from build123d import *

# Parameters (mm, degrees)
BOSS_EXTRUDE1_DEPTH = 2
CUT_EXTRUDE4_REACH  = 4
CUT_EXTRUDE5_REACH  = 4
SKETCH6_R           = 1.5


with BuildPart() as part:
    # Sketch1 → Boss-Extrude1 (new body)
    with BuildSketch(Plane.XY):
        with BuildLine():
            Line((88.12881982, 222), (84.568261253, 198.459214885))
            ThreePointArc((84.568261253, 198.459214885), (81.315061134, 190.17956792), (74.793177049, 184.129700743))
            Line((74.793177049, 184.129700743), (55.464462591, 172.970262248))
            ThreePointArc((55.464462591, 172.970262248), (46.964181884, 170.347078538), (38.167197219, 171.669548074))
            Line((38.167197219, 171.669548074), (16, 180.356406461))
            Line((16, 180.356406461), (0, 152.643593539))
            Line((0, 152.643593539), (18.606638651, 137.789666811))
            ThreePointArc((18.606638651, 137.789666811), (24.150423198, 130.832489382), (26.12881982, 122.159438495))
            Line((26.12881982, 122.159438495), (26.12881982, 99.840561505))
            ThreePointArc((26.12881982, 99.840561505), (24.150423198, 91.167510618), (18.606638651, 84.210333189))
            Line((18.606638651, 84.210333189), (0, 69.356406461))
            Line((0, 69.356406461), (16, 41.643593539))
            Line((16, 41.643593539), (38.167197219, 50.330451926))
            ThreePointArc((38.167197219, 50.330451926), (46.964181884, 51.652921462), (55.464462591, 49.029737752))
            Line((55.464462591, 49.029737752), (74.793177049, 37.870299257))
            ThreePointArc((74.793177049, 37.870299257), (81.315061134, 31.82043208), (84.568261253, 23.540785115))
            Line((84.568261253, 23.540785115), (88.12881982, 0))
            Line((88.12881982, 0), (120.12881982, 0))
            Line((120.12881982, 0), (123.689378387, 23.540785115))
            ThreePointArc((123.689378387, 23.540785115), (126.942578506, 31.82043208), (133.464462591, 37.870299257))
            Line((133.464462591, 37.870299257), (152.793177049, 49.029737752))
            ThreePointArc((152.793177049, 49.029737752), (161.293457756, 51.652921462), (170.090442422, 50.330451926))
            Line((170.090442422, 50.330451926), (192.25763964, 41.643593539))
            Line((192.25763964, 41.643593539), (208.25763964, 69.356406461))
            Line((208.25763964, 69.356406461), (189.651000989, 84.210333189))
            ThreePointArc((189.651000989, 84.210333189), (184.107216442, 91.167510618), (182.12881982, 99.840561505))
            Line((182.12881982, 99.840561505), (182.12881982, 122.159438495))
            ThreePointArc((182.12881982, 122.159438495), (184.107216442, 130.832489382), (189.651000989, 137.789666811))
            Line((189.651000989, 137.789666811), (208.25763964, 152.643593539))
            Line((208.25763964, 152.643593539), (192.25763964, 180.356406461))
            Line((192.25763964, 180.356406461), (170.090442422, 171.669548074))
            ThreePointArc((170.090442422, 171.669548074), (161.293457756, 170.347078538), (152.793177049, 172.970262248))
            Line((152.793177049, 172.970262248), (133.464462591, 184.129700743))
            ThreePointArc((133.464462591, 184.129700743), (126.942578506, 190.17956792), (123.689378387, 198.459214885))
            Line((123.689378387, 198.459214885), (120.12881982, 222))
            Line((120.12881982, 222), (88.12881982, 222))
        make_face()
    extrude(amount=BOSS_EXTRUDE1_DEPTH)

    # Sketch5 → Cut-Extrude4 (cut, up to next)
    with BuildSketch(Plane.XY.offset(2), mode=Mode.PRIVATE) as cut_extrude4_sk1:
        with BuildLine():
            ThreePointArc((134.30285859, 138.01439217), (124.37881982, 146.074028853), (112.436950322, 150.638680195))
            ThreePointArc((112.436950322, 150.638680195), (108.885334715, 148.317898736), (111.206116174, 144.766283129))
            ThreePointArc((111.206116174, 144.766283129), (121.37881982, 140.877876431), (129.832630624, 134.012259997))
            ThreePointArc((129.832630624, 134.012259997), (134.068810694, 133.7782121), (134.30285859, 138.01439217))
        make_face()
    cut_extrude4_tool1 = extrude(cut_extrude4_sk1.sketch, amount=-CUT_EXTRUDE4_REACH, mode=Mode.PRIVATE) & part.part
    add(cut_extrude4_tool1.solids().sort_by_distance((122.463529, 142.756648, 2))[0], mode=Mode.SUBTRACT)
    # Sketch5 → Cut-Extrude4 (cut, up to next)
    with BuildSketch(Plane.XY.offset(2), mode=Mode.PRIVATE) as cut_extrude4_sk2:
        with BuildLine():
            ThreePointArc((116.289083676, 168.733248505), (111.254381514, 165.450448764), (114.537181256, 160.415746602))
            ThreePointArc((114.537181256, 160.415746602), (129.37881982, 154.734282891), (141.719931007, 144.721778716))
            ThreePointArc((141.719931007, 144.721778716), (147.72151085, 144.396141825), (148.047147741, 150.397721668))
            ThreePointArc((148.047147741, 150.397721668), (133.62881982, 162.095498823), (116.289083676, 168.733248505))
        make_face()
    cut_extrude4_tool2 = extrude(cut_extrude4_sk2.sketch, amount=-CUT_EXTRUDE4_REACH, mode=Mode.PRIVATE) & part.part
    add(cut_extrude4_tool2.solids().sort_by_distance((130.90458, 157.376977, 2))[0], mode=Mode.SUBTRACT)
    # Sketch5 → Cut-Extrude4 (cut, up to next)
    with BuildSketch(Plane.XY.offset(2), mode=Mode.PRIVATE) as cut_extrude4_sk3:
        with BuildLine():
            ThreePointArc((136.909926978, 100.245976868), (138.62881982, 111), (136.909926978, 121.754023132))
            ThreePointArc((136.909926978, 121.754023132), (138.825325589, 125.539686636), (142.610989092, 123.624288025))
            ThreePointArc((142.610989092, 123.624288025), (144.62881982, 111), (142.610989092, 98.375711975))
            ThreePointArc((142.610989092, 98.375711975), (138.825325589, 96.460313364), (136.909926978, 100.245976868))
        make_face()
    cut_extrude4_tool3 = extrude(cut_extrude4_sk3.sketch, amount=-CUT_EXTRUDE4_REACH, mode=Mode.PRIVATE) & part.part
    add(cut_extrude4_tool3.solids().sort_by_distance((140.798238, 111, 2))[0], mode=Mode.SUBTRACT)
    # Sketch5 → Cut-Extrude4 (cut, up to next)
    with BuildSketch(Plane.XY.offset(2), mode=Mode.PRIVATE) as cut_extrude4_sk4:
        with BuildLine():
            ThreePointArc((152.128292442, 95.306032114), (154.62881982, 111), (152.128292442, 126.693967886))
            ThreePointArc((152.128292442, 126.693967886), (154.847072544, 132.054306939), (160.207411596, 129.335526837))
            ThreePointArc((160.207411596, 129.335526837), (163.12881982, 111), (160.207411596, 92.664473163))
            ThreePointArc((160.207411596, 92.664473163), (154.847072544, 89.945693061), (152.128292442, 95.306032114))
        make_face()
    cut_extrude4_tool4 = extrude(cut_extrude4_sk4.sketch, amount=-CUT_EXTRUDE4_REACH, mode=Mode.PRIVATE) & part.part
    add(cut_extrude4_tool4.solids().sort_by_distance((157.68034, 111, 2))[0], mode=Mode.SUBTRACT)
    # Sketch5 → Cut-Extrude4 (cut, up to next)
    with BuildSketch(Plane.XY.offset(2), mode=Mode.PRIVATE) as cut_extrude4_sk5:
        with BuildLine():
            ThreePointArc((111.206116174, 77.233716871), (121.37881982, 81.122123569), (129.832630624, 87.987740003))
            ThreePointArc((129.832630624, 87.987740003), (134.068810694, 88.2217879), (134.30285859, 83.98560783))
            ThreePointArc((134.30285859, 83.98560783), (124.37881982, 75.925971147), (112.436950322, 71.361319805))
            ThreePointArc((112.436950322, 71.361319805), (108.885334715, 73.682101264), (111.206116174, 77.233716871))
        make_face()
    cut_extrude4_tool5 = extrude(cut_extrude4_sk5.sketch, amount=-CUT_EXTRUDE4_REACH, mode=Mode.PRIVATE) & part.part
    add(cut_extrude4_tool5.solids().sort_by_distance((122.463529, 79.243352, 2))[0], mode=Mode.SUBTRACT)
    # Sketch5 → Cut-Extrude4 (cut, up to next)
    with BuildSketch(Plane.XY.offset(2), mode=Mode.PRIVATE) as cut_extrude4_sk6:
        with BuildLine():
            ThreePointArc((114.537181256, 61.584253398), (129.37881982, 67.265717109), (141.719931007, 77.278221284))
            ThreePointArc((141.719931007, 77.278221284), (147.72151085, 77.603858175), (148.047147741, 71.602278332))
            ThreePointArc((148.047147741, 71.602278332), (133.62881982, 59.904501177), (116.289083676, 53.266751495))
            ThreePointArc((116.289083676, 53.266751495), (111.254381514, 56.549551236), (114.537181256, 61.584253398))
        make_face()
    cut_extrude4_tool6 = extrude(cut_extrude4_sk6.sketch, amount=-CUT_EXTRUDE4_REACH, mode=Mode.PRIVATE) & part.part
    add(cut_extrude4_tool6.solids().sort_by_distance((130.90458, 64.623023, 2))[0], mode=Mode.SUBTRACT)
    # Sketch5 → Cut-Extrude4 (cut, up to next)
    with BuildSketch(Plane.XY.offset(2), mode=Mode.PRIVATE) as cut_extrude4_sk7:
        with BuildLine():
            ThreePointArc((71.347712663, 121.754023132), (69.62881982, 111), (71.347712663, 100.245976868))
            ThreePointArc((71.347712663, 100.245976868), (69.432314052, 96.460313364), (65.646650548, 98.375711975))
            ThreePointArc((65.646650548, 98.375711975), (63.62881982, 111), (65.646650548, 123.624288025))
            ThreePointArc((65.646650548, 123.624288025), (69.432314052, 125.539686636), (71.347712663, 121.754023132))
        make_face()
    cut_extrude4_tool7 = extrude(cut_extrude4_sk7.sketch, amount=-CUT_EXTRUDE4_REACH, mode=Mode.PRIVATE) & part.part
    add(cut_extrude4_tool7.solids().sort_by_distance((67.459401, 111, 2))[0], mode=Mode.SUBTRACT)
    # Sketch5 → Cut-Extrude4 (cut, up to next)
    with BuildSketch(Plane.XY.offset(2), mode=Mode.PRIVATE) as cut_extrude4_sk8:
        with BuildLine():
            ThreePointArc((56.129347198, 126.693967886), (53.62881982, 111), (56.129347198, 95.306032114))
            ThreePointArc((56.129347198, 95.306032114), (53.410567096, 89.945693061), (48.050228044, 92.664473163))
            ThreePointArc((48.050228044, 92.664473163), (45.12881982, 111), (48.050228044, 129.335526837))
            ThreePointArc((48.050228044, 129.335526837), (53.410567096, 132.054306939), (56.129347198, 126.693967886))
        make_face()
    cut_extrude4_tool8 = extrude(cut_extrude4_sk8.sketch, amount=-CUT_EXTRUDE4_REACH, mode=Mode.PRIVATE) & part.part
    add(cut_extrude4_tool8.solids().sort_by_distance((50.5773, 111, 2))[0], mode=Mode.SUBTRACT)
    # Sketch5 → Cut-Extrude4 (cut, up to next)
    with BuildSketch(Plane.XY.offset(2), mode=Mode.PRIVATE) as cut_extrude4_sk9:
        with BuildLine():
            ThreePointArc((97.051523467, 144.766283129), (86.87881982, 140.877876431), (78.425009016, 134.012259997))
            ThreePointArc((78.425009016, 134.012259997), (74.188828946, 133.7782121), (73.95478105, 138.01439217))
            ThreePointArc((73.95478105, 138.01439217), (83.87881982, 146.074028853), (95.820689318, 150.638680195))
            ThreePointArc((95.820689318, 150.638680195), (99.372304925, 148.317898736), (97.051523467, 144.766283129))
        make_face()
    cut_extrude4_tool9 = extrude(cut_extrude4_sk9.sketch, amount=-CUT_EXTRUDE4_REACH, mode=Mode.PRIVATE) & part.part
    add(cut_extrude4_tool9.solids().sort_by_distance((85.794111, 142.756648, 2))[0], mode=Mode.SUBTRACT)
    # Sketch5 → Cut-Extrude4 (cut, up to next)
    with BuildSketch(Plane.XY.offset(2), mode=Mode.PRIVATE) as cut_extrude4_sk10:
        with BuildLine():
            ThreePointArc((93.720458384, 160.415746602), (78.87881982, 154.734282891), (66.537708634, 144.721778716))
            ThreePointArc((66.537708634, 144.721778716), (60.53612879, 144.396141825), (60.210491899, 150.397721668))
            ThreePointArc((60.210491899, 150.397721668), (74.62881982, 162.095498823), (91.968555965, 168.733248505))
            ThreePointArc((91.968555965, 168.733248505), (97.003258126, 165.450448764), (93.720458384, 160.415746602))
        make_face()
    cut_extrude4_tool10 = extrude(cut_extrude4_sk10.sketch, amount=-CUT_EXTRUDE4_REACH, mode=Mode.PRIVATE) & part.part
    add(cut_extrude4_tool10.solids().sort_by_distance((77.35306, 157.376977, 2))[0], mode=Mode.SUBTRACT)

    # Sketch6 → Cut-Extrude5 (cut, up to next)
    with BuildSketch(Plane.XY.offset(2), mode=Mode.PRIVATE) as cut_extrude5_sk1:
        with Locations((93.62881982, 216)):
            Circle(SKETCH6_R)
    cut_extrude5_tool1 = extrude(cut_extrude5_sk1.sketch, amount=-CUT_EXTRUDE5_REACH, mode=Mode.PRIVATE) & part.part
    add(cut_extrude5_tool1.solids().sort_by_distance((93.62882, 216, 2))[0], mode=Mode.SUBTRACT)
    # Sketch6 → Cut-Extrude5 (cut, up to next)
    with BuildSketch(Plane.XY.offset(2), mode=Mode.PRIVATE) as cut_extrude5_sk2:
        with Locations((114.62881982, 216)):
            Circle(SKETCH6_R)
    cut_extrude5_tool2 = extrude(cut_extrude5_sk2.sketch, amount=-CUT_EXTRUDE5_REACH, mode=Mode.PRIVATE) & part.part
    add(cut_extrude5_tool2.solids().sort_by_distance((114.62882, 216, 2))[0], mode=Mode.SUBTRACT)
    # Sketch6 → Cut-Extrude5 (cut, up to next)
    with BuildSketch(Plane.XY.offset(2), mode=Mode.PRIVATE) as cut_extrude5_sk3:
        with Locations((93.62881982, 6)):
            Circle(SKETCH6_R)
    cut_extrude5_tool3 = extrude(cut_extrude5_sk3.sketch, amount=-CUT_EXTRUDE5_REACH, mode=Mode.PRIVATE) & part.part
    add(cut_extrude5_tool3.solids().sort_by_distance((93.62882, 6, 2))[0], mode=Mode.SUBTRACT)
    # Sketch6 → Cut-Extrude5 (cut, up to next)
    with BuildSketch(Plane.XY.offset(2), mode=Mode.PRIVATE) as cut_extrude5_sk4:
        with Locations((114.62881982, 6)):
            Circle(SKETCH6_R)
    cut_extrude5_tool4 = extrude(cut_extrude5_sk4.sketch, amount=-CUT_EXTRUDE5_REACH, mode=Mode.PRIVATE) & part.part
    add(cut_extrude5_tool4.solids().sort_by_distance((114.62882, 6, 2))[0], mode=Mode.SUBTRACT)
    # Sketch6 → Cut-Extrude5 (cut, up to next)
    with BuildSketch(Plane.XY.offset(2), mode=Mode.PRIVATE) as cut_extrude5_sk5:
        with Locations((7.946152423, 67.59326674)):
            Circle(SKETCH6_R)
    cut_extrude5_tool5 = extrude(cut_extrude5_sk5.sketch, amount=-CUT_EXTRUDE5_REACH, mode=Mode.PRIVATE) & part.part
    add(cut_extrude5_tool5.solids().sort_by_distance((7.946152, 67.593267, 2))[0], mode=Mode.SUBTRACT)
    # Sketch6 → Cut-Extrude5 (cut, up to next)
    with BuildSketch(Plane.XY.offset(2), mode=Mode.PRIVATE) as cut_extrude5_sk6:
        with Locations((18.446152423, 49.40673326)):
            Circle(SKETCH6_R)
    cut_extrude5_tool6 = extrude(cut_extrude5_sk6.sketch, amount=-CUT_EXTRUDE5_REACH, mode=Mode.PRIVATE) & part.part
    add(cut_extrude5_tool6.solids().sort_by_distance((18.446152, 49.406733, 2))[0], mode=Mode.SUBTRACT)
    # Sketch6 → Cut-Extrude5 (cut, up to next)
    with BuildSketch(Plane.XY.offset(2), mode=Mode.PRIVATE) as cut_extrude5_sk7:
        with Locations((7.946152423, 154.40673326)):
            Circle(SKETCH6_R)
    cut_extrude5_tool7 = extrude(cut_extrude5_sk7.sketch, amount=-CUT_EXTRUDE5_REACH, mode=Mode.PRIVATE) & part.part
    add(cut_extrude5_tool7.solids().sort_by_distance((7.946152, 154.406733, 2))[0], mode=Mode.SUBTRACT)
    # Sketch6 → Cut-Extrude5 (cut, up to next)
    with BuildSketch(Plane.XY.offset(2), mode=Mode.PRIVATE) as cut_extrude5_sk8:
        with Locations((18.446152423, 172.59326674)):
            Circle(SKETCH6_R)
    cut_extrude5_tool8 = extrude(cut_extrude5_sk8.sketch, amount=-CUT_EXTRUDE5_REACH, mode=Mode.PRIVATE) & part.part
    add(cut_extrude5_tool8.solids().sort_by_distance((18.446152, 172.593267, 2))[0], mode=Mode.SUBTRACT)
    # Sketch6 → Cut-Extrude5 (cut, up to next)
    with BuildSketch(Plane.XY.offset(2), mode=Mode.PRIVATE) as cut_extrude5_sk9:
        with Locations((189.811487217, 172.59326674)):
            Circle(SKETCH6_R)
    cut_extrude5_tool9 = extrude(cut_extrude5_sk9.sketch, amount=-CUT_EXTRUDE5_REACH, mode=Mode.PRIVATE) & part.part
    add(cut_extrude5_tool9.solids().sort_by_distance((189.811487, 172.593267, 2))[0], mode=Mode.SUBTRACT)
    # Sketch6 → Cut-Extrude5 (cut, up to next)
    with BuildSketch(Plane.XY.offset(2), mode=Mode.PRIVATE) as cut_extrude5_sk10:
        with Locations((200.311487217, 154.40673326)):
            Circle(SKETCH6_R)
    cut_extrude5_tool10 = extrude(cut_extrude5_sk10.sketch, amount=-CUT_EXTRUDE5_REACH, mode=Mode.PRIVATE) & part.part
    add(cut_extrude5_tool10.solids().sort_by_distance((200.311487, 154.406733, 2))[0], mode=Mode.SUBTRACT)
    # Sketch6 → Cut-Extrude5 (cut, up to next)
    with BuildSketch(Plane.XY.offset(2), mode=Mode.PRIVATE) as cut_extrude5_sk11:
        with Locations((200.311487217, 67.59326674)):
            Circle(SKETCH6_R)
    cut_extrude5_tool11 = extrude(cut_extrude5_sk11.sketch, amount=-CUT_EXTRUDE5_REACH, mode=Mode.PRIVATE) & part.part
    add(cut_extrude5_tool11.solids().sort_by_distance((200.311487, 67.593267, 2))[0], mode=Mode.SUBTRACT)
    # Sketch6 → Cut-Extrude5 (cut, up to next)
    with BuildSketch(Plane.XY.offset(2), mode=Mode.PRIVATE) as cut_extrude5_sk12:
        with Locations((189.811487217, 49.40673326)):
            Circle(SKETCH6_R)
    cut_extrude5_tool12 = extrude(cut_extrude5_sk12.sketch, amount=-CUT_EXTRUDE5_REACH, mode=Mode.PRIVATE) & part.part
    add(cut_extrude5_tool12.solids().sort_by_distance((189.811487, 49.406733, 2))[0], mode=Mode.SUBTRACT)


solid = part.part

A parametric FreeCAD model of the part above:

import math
import FreeCAD as App
import Part
import Sketcher
Q = App.Units.Quantity

doc = App.newDocument("Part")
body = doc.addObject("PartDesign::Body", "Body")

# Sketch on XY plane
sketch1 = body.newObject("Sketcher::SketchObject", "Sketch")
sketch1.AttachmentSupport = (doc.getObject("XY_Plane"), [""])
sketch1.MapMode = "FlatFace"
sketch1.addGeometry([
    Part.LineSegment(App.Vector(88, 222, 0), App.Vector(85, 198, 0)),  # 0
    Part.ArcOfCircle(Part.Circle(App.Vector(65, 201, 0), App.Vector(0, 0, 1), 20), math.radians(-60), math.radians(-9)),  # 1
    Part.LineSegment(App.Vector(75, 184, 0), App.Vector(55, 173, 0)),  # 2
    Part.ArcOfCircle(Part.Circle(App.Vector(45, 190, 0), App.Vector(0, 0, 1), 20), math.radians(-111), math.radians(-60)),  # 3
    Part.LineSegment(App.Vector(38, 172, 0), App.Vector(16, 180, 0)),  # 4
    Part.LineSegment(App.Vector(16, 180, 0), App.Vector(0, 153, 0)),  # 5
    Part.LineSegment(App.Vector(0, 153, 0), App.Vector(19, 138, 0)),  # 6
    Part.ArcOfCircle(Part.Circle(App.Vector(6, 122, 0), App.Vector(0, 0, 1), 20), math.radians(0), math.radians(51)),  # 7
    Part.LineSegment(App.Vector(26, 122, 0), App.Vector(26, 100, 0)),  # 8
    Part.ArcOfCircle(Part.Circle(App.Vector(6, 100, 0), App.Vector(0, 0, 1), 20), math.radians(-51), math.radians(0)),  # 9
    Part.LineSegment(App.Vector(19, 84, 0), App.Vector(0, 69, 0)),  # 10
    Part.LineSegment(App.Vector(0, 69, 0), App.Vector(16, 42, 0)),  # 11
    Part.LineSegment(App.Vector(16, 42, 0), App.Vector(38, 50, 0)),  # 12
    Part.ArcOfCircle(Part.Circle(App.Vector(45, 32, 0), App.Vector(0, 0, 1), 20), math.radians(60), math.radians(111)),  # 13
    Part.LineSegment(App.Vector(55, 49, 0), App.Vector(75, 38, 0)),  # 14
    Part.ArcOfCircle(Part.Circle(App.Vector(65, 21, 0), App.Vector(0, 0, 1), 20), math.radians(9), math.radians(60)),  # 15
    Part.LineSegment(App.Vector(85, 24, 0), App.Vector(88, 0, 0)),  # 16
    Part.LineSegment(App.Vector(88, 0, 0), App.Vector(120, 0, 0)),  # 17
    Part.LineSegment(App.Vector(120, 0, 0), App.Vector(124, 24, 0)),  # 18
    Part.ArcOfCircle(Part.Circle(App.Vector(143, 21, 0), App.Vector(0, 0, 1), 20), math.radians(120), math.radians(171)),  # 19
    Part.LineSegment(App.Vector(133, 38, 0), App.Vector(153, 49, 0)),  # 20
    Part.ArcOfCircle(Part.Circle(App.Vector(163, 32, 0), App.Vector(0, 0, 1), 20), math.radians(69), math.radians(120)),  # 21
    Part.LineSegment(App.Vector(170, 50, 0), App.Vector(192, 42, 0)),  # 22
    Part.LineSegment(App.Vector(192, 42, 0), App.Vector(208, 69, 0)),  # 23
    Part.LineSegment(App.Vector(208, 69, 0), App.Vector(190, 84, 0)),  # 24
    Part.ArcOfCircle(Part.Circle(App.Vector(202, 100, 0), App.Vector(0, 0, 1), 20), math.radians(180), math.radians(231)),  # 25
    Part.LineSegment(App.Vector(182, 100, 0), App.Vector(182, 122, 0)),  # 26
    Part.ArcOfCircle(Part.Circle(App.Vector(202, 122, 0), App.Vector(0, 0, 1), 20), math.radians(129), math.radians(180)),  # 27
    Part.LineSegment(App.Vector(190, 138, 0), App.Vector(208, 153, 0)),  # 28
    Part.LineSegment(App.Vector(208, 153, 0), App.Vector(192, 180, 0)),  # 29
    Part.LineSegment(App.Vector(192, 180, 0), App.Vector(170, 172, 0)),  # 30
    Part.ArcOfCircle(Part.Circle(App.Vector(163, 190, 0), App.Vector(0, 0, 1), 20), math.radians(-120), math.radians(-69)),  # 31
    Part.LineSegment(App.Vector(153, 173, 0), App.Vector(133, 184, 0)),  # 32
    Part.ArcOfCircle(Part.Circle(App.Vector(143, 201, 0), App.Vector(0, 0, 1), 20), math.radians(-171), math.radians(-120)),  # 33
    Part.LineSegment(App.Vector(124, 198, 0), App.Vector(120, 222, 0)),  # 34
    Part.LineSegment(App.Vector(120, 222, 0), App.Vector(88, 222, 0)),  # 35
], False)
sketch1.addConstraint([
    Sketcher.Constraint("Tangent", 0, 2, 1, 2),
    Sketcher.Constraint("Tangent", 1, 1, 2, 1),
    Sketcher.Constraint("Tangent", 2, 2, 3, 2),
    Sketcher.Constraint("Tangent", 3, 1, 4, 1),
    Sketcher.Constraint("Coincident", 4, 2, 5, 1),
    Sketcher.Constraint("Coincident", 5, 2, 6, 1),
    Sketcher.Constraint("Tangent", 6, 2, 7, 2),
    Sketcher.Constraint("Tangent", 7, 1, 8, 1),
    Sketcher.Constraint("Tangent", 8, 2, 9, 2),
    Sketcher.Constraint("Tangent", 9, 1, 10, 1),
    Sketcher.Constraint("Coincident", 10, 2, 11, 1),
    Sketcher.Constraint("Coincident", 11, 2, 12, 1),
    Sketcher.Constraint("Tangent", 12, 2, 13, 2),
    Sketcher.Constraint("Tangent", 13, 1, 14, 1),
    Sketcher.Constraint("Tangent", 14, 2, 15, 2),
    Sketcher.Constraint("Tangent", 15, 1, 16, 1),
    Sketcher.Constraint("Coincident", 16, 2, 17, 1),
    Sketcher.Constraint("Coincident", 17, 2, 18, 1),
    Sketcher.Constraint("Tangent", 18, 2, 19, 2),
    Sketcher.Constraint("Tangent", 19, 1, 20, 1),
    Sketcher.Constraint("Tangent", 20, 2, 21, 2),
    Sketcher.Constraint("Tangent", 21, 1, 22, 1),
    Sketcher.Constraint("Coincident", 22, 2, 23, 1),
    Sketcher.Constraint("Coincident", 23, 2, 24, 1),
    Sketcher.Constraint("Tangent", 24, 2, 25, 2),
    Sketcher.Constraint("Tangent", 25, 1, 26, 1),
    Sketcher.Constraint("Tangent", 26, 2, 27, 2),
    Sketcher.Constraint("Tangent", 27, 1, 28, 1),
    Sketcher.Constraint("Coincident", 28, 2, 29, 1),
    Sketcher.Constraint("Coincident", 29, 2, 30, 1),
    Sketcher.Constraint("Tangent", 30, 2, 31, 2),
    Sketcher.Constraint("Tangent", 31, 1, 32, 1),
    Sketcher.Constraint("Tangent", 32, 2, 33, 2),
    Sketcher.Constraint("Tangent", 33, 1, 34, 1),
    Sketcher.Constraint("Coincident", 34, 2, 35, 1),
    Sketcher.Constraint("Coincident", 35, 2, 0, 1),
    Sketcher.Constraint("Vertical", 8),
    Sketcher.Constraint("Horizontal", 17),
    Sketcher.Constraint("Vertical", 26),
    Sketcher.Constraint("Horizontal", 35),
    Sketcher.Constraint("Equal", 1, 3),
    Sketcher.Constraint("Equal", 3, 7),
    Sketcher.Constraint("Equal", 7, 9),
    Sketcher.Constraint("Equal", 9, 13),
    Sketcher.Constraint("Equal", 13, 15),
    Sketcher.Constraint("Equal", 15, 19),
    Sketcher.Constraint("Equal", 19, 21),
    Sketcher.Constraint("Equal", 21, 25),
    Sketcher.Constraint("Equal", 25, 27),
    Sketcher.Constraint("Equal", 27, 31),
    Sketcher.Constraint("Equal", 31, 33),
    Sketcher.Constraint("PointOnObject", 5, 2, -2),
    Sketcher.Constraint("PointOnObject", 10, 2, -2),
    Sketcher.Constraint("PointOnObject", 16, 2, -1),
    Sketcher.Constraint("Perpendicular", 2, 11),
    Sketcher.Constraint("Perpendicular", 5, 14),
    Sketcher.Constraint("Parallel", 0, 18),
    Sketcher.Constraint("Perpendicular", 11, 20),
    Sketcher.Constraint("Parallel", 4, 22),
    Sketcher.Constraint("Perpendicular", 14, 23),
    Sketcher.Constraint("Parallel", 6, 24),
    Sketcher.Constraint("Parallel", 10, 28),
    Sketcher.Constraint("Perpendicular", 20, 29),
    Sketcher.Constraint("Parallel", 12, 30),
    Sketcher.Constraint("Perpendicular", 23, 32),
    Sketcher.Constraint("Parallel", 16, 34),
    Sketcher.Constraint("Horizontal", 15, 3, 19, 3),
    Sketcher.Constraint("Horizontal", 13, 3, 21, 3),
    Sketcher.Constraint("Horizontal", 9, 3, 25, 3),
    Sketcher.Constraint("Horizontal", 7, 3, 27, 3),
    Sketcher.Constraint("Horizontal", 3, 3, 31, 3),
    Sketcher.Constraint("Horizontal", 1, 3, 33, 3),
    Sketcher.Constraint("Horizontal", 15, 1, 18, 2),
    Sketcher.Constraint("Horizontal", 14, 2, 19, 1),
    Sketcher.Constraint("Horizontal", 12, 2, 21, 1),
    Sketcher.Constraint("Horizontal", 11, 2, 22, 2),
    Sketcher.Constraint("Horizontal", 10, 2, 23, 2),
    Sketcher.Constraint("Horizontal", 9, 1, 24, 2),
    Sketcher.Constraint("Horizontal", 5, 2, 28, 2),
    Sketcher.Constraint("Horizontal", 4, 2, 29, 2),
    Sketcher.Constraint("Vertical", 3, 3, 13, 3),
    Sketcher.Constraint("Vertical", 1, 3, 15, 3),
    Sketcher.Constraint("Vertical", 4, 2, 11, 2),
    Sketcher.Constraint("Vertical", 17, 2, 34, 2),
    Sketcher.Constraint("Equal", 0, 4),
    Sketcher.Constraint("Equal", 4, 6),
    Sketcher.Constraint("Radius", 1, 20.0),
    Sketcher.Constraint("DistanceX", 17, 1, 17, 2, 32.0),
    Sketcher.Constraint("Angle", 2, Q("-150 deg")),
    Sketcher.Constraint("Distance", 5, 32.0),
    Sketcher.Constraint("DistanceY", -1, 1, 34, 2, 222.0),
    Sketcher.Constraint("DistanceX", 13, 3, 19, 3, 98.0),
    Sketcher.Constraint("DistanceX", -1, 1, 24, 2, 189.651001),
    Sketcher.Constraint("DistanceY", -1, 1, 1, 1, 184.129701),
    Sketcher.Constraint("DistanceX", 3, 3, 0, 2, 39.103799),
    Sketcher.Constraint("DistanceY", 8, 2, 8, 1, 22.318877),
])
pad1 = body.newObject("PartDesign::Pad", "Pad")
pad1.Profile = sketch1
pad1.Length = 2

# Sketch on XY plane
sketch2 = body.newObject("Sketcher::SketchObject", "Sketch001")
sketch2.AttachmentSupport = (doc.getObject("XY_Plane"), [""])
sketch2.MapMode = "FlatFace"
sketch2.AttachmentOffset = App.Placement(App.Vector(0, 0, 2), App.Rotation())
sketch2.addGeometry([
    Part.ArcOfCircle(Part.Circle(App.Vector(104.12882, 111, 0), App.Vector(0, 0, 1), 40.5), math.radians(41.837638), math.radians(78.162362)),
    Part.ArcOfCircle(Part.Circle(App.Vector(111.821533, 147.702482, 0), App.Vector(0, 0, 1), 3), math.radians(78.162362), math.radians(258.162362)),
    Part.ArcOfCircle(Part.Circle(App.Vector(104.12882, 111, 0), App.Vector(0, 0, 1), 34.5), math.radians(41.837638), math.radians(78.162362)),
    Part.ArcOfCircle(Part.Circle(App.Vector(132.067745, 136.013326, 0), App.Vector(0, 0, 1), 3), math.radians(-138.162362), math.radians(41.837638)),
], False)
sketch2.addConstraint([
    Sketcher.Constraint("Tangent", 0, 2, 1, 1),
    Sketcher.Constraint("Tangent", 1, 2, 2, 2),
    Sketcher.Constraint("Tangent", 2, 1, 3, 1),
    Sketcher.Constraint("Tangent", 3, 2, 0, 1),
    Sketcher.Constraint("Coincident", 2, 3, 0, 3),
    Sketcher.Constraint("Radius", 1, 3.0),
    Sketcher.Constraint("Radius", 0, 40.5),
    Sketcher.Constraint("DistanceY", -1, 1, 0, 3, 111.0),
    Sketcher.Constraint("DistanceY", 1, 3, 0, 2, 2.936199),
    Sketcher.Constraint("DistanceX", -1, 1, 0, 3, 104.12882),
    Sketcher.Constraint("DistanceX", -1, 1, 2, 1, 129.832631),
])
pocket1 = body.newObject("PartDesign::Pocket", "Pocket")
pocket1.Profile = sketch2
pocket1.Type = "UpToFirst"

# Sketch on XY plane
sketch3 = body.newObject("Sketcher::SketchObject", "Sketch002")
sketch3.AttachmentSupport = (doc.getObject("XY_Plane"), [""])
sketch3.MapMode = "FlatFace"
sketch3.AttachmentOffset = App.Placement(App.Vector(0, 0, 2), App.Rotation())
sketch3.addGeometry([
    Part.ArcOfCircle(Part.Circle(App.Vector(115.4, 164.6, 0), App.Vector(0, 0, 1), 4.2), math.radians(78), math.radians(258)),
    Part.ArcOfCircle(Part.Circle(App.Vector(104.1, 111, 0), App.Vector(0, 0, 1), 50.5), math.radians(42), math.radians(78)),
    Part.ArcOfCircle(Part.Circle(App.Vector(144.9, 147.6, 0), App.Vector(0, 0, 1), 4.2), math.radians(-138), math.radians(42)),
    Part.ArcOfCircle(Part.Circle(App.Vector(104.1, 111, 0), App.Vector(0, 0, 1), 59), math.radians(42), math.radians(78)),
], False)
sketch3.addConstraint([
    Sketcher.Constraint("Tangent", 0, 2, 1, 2),
    Sketcher.Constraint("Tangent", 1, 1, 2, 1),
    Sketcher.Constraint("Tangent", 2, 2, 3, 1),
    Sketcher.Constraint("Tangent", 3, 2, 0, 1),
    Sketcher.Constraint("Coincident", 3, 3, 1, 3),
    Sketcher.Constraint("Radius", 3, 59.0),
    Sketcher.Constraint("Radius", 1, 50.5),
    Sketcher.Constraint("DistanceY", -1, 1, 1, 3, 111.0),
    Sketcher.Constraint("DistanceX", 0, 3, 1, 1, 26.306799),
    Sketcher.Constraint("DistanceY", 2, 3, 3, 2, 21.173498),
    Sketcher.Constraint("DistanceX", -1, 1, 1, 3, 104.12882),
])
pocket2 = body.newObject("PartDesign::Pocket", "Pocket001")
pocket2.Profile = sketch3
pocket2.Type = "UpToFirst"

# Sketch on XY plane
sketch4 = body.newObject("Sketcher::SketchObject", "Sketch003")
sketch4.AttachmentSupport = (doc.getObject("XY_Plane"), [""])
sketch4.MapMode = "FlatFace"
sketch4.AttachmentOffset = App.Placement(App.Vector(0, 0, 2), App.Rotation())
sketch4.addGeometry([
    Part.ArcOfCircle(Part.Circle(App.Vector(104.1, 111, 0), App.Vector(0, 0, 1), 34.5), math.radians(-18), math.radians(18)),
    Part.ArcOfCircle(Part.Circle(App.Vector(139.8, 99.3, 0), App.Vector(0, 0, 1), 3), math.radians(162), math.radians(342)),
    Part.ArcOfCircle(Part.Circle(App.Vector(104.1, 111, 0), App.Vector(0, 0, 1), 40.5), math.radians(-18), math.radians(18)),
    Part.ArcOfCircle(Part.Circle(App.Vector(139.8, 122.7, 0), App.Vector(0, 0, 1), 3), math.radians(18), math.radians(198)),
], False)
sketch4.addConstraint([
    Sketcher.Constraint("Tangent", 0, 1, 1, 1),
    Sketcher.Constraint("Tangent", 1, 2, 2, 1),
    Sketcher.Constraint("Tangent", 2, 2, 3, 1),
    Sketcher.Constraint("Tangent", 3, 2, 0, 2),
    Sketcher.Constraint("Coincident", 2, 3, 0, 3),
    Sketcher.Constraint("Vertical", 1, 3, 3, 3),
    Sketcher.Constraint("Radius", 1, 3.0),
    Sketcher.Constraint("Radius", 0, 34.5),
    Sketcher.Constraint("DistanceY", -1, 1, 0, 3, 111.0),
    Sketcher.Constraint("DistanceX", -1, 1, 0, 3, 104.12882),
    Sketcher.Constraint("DistanceX", -1, 1, 1, 3, 139.760458),
])
pocket3 = body.newObject("PartDesign::Pocket", "Pocket002")
pocket3.Profile = sketch4
pocket3.Type = "UpToFirst"

# Sketch on XY plane
sketch5 = body.newObject("Sketcher::SketchObject", "Sketch004")
sketch5.AttachmentSupport = (doc.getObject("XY_Plane"), [""])
sketch5.MapMode = "FlatFace"
sketch5.AttachmentOffset = App.Placement(App.Vector(0, 0, 2), App.Rotation())
sketch5.addGeometry([
    Part.ArcOfCircle(Part.Circle(App.Vector(104.1, 111, 0), App.Vector(0, 0, 1), 50.5), math.radians(-18), math.radians(18)),
    Part.ArcOfCircle(Part.Circle(App.Vector(156.2, 94, 0), App.Vector(0, 0, 1), 4.2), math.radians(162), math.radians(342)),
    Part.ArcOfCircle(Part.Circle(App.Vector(104.1, 111, 0), App.Vector(0, 0, 1), 59), math.radians(-18), math.radians(18)),
    Part.ArcOfCircle(Part.Circle(App.Vector(156.2, 128, 0), App.Vector(0, 0, 1), 4.2), math.radians(18), math.radians(198)),
], False)
sketch5.addConstraint([
    Sketcher.Constraint("Tangent", 0, 1, 1, 1),
    Sketcher.Constraint("Tangent", 1, 2, 2, 1),
    Sketcher.Constraint("Tangent", 2, 2, 3, 1),
    Sketcher.Constraint("Tangent", 3, 2, 0, 2),
    Sketcher.Constraint("Coincident", 2, 3, 0, 3),
    Sketcher.Constraint("Vertical", 1, 3, 3, 3),
    Sketcher.Constraint("Radius", 2, 59.0),
    Sketcher.Constraint("Radius", 0, 50.5),
    Sketcher.Constraint("DistanceY", -1, 1, 0, 3, 111.0),
    Sketcher.Constraint("DistanceX", -1, 1, 0, 3, 104.12882),
    Sketcher.Constraint("DistanceX", -1, 1, 1, 2, 160.207412),
])
pocket4 = body.newObject("PartDesign::Pocket", "Pocket003")
pocket4.Profile = sketch5
pocket4.Type = "UpToFirst"

# Sketch on XY plane
sketch6 = body.newObject("Sketcher::SketchObject", "Sketch005")
sketch6.AttachmentSupport = (doc.getObject("XY_Plane"), [""])
sketch6.MapMode = "FlatFace"
sketch6.AttachmentOffset = App.Placement(App.Vector(0, 0, 2), App.Rotation())
sketch6.addGeometry([
    Part.ArcOfCircle(Part.Circle(App.Vector(104.12882, 111, 0), App.Vector(0, 0, 1), 34.5), math.radians(-78.162362), math.radians(-41.837638)),
    Part.ArcOfCircle(Part.Circle(App.Vector(111.821533, 74.297518, 0), App.Vector(0, 0, 1), 3), math.radians(101.837638), math.radians(281.837638)),
    Part.ArcOfCircle(Part.Circle(App.Vector(104.12882, 111, 0), App.Vector(0, 0, 1), 40.5), math.radians(-78.162362), math.radians(-41.837638)),
    Part.ArcOfCircle(Part.Circle(App.Vector(132.067745, 85.986674, 0), App.Vector(0, 0, 1), 3), math.radians(-41.837638), math.radians(138.162362)),
], False)
sketch6.addConstraint([
    Sketcher.Constraint("Tangent", 0, 1, 1, 1),
    Sketcher.Constraint("Tangent", 1, 2, 2, 1),
    Sketcher.Constraint("Tangent", 2, 2, 3, 1),
    Sketcher.Constraint("Tangent", 3, 2, 0, 2),
    Sketcher.Constraint("Coincident", 2, 3, 0, 3),
    Sketcher.Constraint("Radius", 1, 3.0),
    Sketcher.Constraint("Radius", 0, 34.5),
    Sketcher.Constraint("DistanceY", -1, 1, 0, 3, 111.0),
    Sketcher.Constraint("DistanceY", 1, 3, 0, 1, 2.936199),
    Sketcher.Constraint("DistanceX", -1, 1, 0, 3, 104.12882),
    Sketcher.Constraint("DistanceX", -1, 1, 2, 2, 134.302859),
])
pocket5 = body.newObject("PartDesign::Pocket", "Pocket004")
pocket5.Profile = sketch6
pocket5.Type = "UpToFirst"

# Sketch on XY plane
sketch7 = body.newObject("Sketcher::SketchObject", "Sketch006")
sketch7.AttachmentSupport = (doc.getObject("XY_Plane"), [""])
sketch7.MapMode = "FlatFace"
sketch7.AttachmentOffset = App.Placement(App.Vector(0, 0, 2), App.Rotation())
sketch7.addGeometry([
    Part.ArcOfCircle(Part.Circle(App.Vector(104.1, 111, 0), App.Vector(0, 0, 1), 50.5), math.radians(-78), math.radians(-42)),
    Part.ArcOfCircle(Part.Circle(App.Vector(115.4, 57.4, 0), App.Vector(0, 0, 1), 4.2), math.radians(102), math.radians(282)),
    Part.ArcOfCircle(Part.Circle(App.Vector(104.1, 111, 0), App.Vector(0, 0, 1), 59), math.radians(-78), math.radians(-42)),
    Part.ArcOfCircle(Part.Circle(App.Vector(144.9, 74.4, 0), App.Vector(0, 0, 1), 4.2), math.radians(-42), math.radians(138)),
], False)
sketch7.addConstraint([
    Sketcher.Constraint("Tangent", 0, 1, 1, 1),
    Sketcher.Constraint("Tangent", 1, 2, 2, 1),
    Sketcher.Constraint("Tangent", 2, 2, 3, 1),
    Sketcher.Constraint("Tangent", 3, 2, 0, 2),
    Sketcher.Constraint("Coincident", 2, 3, 0, 3),
    Sketcher.Constraint("Radius", 2, 59.0),
    Sketcher.Constraint("Radius", 0, 50.5),
    Sketcher.Constraint("DistanceY", -1, 1, 0, 3, 111.0),
    Sketcher.Constraint("DistanceY", 1, 2, 0, 1, 8.317502),
    Sketcher.Constraint("DistanceY", 1, 2, 3, 3, 21.173498),
    Sketcher.Constraint("DistanceX", -1, 1, 0, 3, 104.12882),
])
pocket6 = body.newObject("PartDesign::Pocket", "Pocket005")
pocket6.Profile = sketch7
pocket6.Type = "UpToFirst"

# Sketch on XY plane
sketch8 = body.newObject("Sketcher::SketchObject", "Sketch007")
sketch8.AttachmentSupport = (doc.getObject("XY_Plane"), [""])
sketch8.MapMode = "FlatFace"
sketch8.AttachmentOffset = App.Placement(App.Vector(0, 0, 2), App.Rotation())
sketch8.addGeometry([
    Part.ArcOfCircle(Part.Circle(App.Vector(104.1, 111, 0), App.Vector(0, 0, 1), 34.5), math.radians(162), math.radians(198)),
    Part.ArcOfCircle(Part.Circle(App.Vector(68.5, 122.7, 0), App.Vector(0, 0, 1), 3), math.radians(-18), math.radians(162)),
    Part.ArcOfCircle(Part.Circle(App.Vector(104.1, 111, 0), App.Vector(0, 0, 1), 40.5), math.radians(162), math.radians(198)),
    Part.ArcOfCircle(Part.Circle(App.Vector(68.5, 99.3, 0), App.Vector(0, 0, 1), 3), math.radians(-162), math.radians(18)),
], False)
sketch8.addConstraint([
    Sketcher.Constraint("Tangent", 0, 1, 1, 1),
    Sketcher.Constraint("Tangent", 1, 2, 2, 1),
    Sketcher.Constraint("Tangent", 2, 2, 3, 1),
    Sketcher.Constraint("Tangent", 3, 2, 0, 2),
    Sketcher.Constraint("Coincident", 2, 3, 0, 3),
    Sketcher.Constraint("Vertical", 1, 3, 3, 3),
    Sketcher.Constraint("Radius", 1, 3.0),
    Sketcher.Constraint("Radius", 0, 34.5),
    Sketcher.Constraint("DistanceY", -1, 1, 0, 3, 111.0),
    Sketcher.Constraint("DistanceX", -1, 1, 0, 3, 104.12882),
    Sketcher.Constraint("DistanceX", -1, 1, 1, 3, 68.497182),
])
pocket7 = body.newObject("PartDesign::Pocket", "Pocket006")
pocket7.Profile = sketch8
pocket7.Type = "UpToFirst"

# Sketch on XY plane
sketch9 = body.newObject("Sketcher::SketchObject", "Sketch008")
sketch9.AttachmentSupport = (doc.getObject("XY_Plane"), [""])
sketch9.MapMode = "FlatFace"
sketch9.AttachmentOffset = App.Placement(App.Vector(0, 0, 2), App.Rotation())
sketch9.addGeometry([
    Part.ArcOfCircle(Part.Circle(App.Vector(104.1, 111, 0), App.Vector(0, 0, 1), 50.5), math.radians(162), math.radians(198)),
    Part.ArcOfCircle(Part.Circle(App.Vector(52.1, 128, 0), App.Vector(0, 0, 1), 4.2), math.radians(-18), math.radians(162)),
    Part.ArcOfCircle(Part.Circle(App.Vector(104.1, 111, 0), App.Vector(0, 0, 1), 59), math.radians(162), math.radians(198)),
    Part.ArcOfCircle(Part.Circle(App.Vector(52.1, 94, 0), App.Vector(0, 0, 1), 4.2), math.radians(-162), math.radians(18)),
], False)
sketch9.addConstraint([
    Sketcher.Constraint("Tangent", 0, 1, 1, 1),
    Sketcher.Constraint("Tangent", 1, 2, 2, 1),
    Sketcher.Constraint("Tangent", 2, 2, 3, 1),
    Sketcher.Constraint("Tangent", 3, 2, 0, 2),
    Sketcher.Constraint("Coincident", 2, 3, 0, 3),
    Sketcher.Constraint("Vertical", 1, 3, 3, 3),
    Sketcher.Constraint("Radius", 2, 59.0),
    Sketcher.Constraint("Radius", 0, 50.5),
    Sketcher.Constraint("DistanceY", -1, 1, 0, 3, 111.0),
    Sketcher.Constraint("DistanceX", -1, 1, 0, 3, 104.12882),
    Sketcher.Constraint("DistanceX", -1, 1, 1, 2, 48.050228),
])
pocket8 = body.newObject("PartDesign::Pocket", "Pocket007")
pocket8.Profile = sketch9
pocket8.Type = "UpToFirst"

# Sketch on XY plane
sketch10 = body.newObject("Sketcher::SketchObject", "Sketch009")
sketch10.AttachmentSupport = (doc.getObject("XY_Plane"), [""])
sketch10.MapMode = "FlatFace"
sketch10.AttachmentOffset = App.Placement(App.Vector(0, 0, 2), App.Rotation())
sketch10.addGeometry([
    Part.ArcOfCircle(Part.Circle(App.Vector(104.12882, 111, 0), App.Vector(0, 0, 1), 34.5), math.radians(101.837638), math.radians(138.162362)),
    Part.ArcOfCircle(Part.Circle(App.Vector(96.436106, 147.702482, 0), App.Vector(0, 0, 1), 3), math.radians(-78.162362), math.radians(101.837638)),
    Part.ArcOfCircle(Part.Circle(App.Vector(104.12882, 111, 0), App.Vector(0, 0, 1), 40.5), math.radians(101.837638), math.radians(138.162362)),
    Part.ArcOfCircle(Part.Circle(App.Vector(76.189895, 136.013326, 0), App.Vector(0, 0, 1), 3), math.radians(138.162362), math.radians(318.162362)),
], False)
sketch10.addConstraint([
    Sketcher.Constraint("Tangent", 0, 1, 1, 1),
    Sketcher.Constraint("Tangent", 1, 2, 2, 1),
    Sketcher.Constraint("Tangent", 2, 2, 3, 1),
    Sketcher.Constraint("Tangent", 3, 2, 0, 2),
    Sketcher.Constraint("Coincident", 2, 3, 0, 3),
    Sketcher.Constraint("Radius", 1, 3.0),
    Sketcher.Constraint("Radius", 0, 34.5),
    Sketcher.Constraint("DistanceY", -1, 1, 0, 3, 111.0),
    Sketcher.Constraint("DistanceY", 0, 1, 1, 3, 2.936199),
    Sketcher.Constraint("DistanceX", -1, 1, 0, 3, 104.12882),
    Sketcher.Constraint("DistanceX", -1, 1, 2, 2, 73.954781),
])
pocket9 = body.newObject("PartDesign::Pocket", "Pocket008")
pocket9.Profile = sketch10
pocket9.Type = "UpToFirst"

# Sketch on XY plane
sketch11 = body.newObject("Sketcher::SketchObject", "Sketch010")
sketch11.AttachmentSupport = (doc.getObject("XY_Plane"), [""])
sketch11.MapMode = "FlatFace"
sketch11.AttachmentOffset = App.Placement(App.Vector(0, 0, 2), App.Rotation())
sketch11.addGeometry([
    Part.ArcOfCircle(Part.Circle(App.Vector(104.1, 111, 0), App.Vector(0, 0, 1), 50.5), math.radians(102), math.radians(138)),
    Part.ArcOfCircle(Part.Circle(App.Vector(92.8, 164.6, 0), App.Vector(0, 0, 1), 4.2), math.radians(-78), math.radians(102)),
    Part.ArcOfCircle(Part.Circle(App.Vector(104.1, 111, 0), App.Vector(0, 0, 1), 59), math.radians(102), math.radians(138)),
    Part.ArcOfCircle(Part.Circle(App.Vector(63.4, 147.6, 0), App.Vector(0, 0, 1), 4.2), math.radians(138), math.radians(318)),
], False)
sketch11.addConstraint([
    Sketcher.Constraint("Tangent", 0, 1, 1, 1),
    Sketcher.Constraint("Tangent", 1, 2, 2, 1),
    Sketcher.Constraint("Tangent", 2, 2, 3, 1),
    Sketcher.Constraint("Tangent", 3, 2, 0, 2),
    Sketcher.Constraint("Coincident", 2, 3, 0, 3),
    Sketcher.Constraint("Radius", 2, 59.0),
    Sketcher.Constraint("Radius", 0, 50.5),
    Sketcher.Constraint("DistanceY", -1, 1, 0, 3, 111.0),
    Sketcher.Constraint("DistanceX", -1, 1, 3, 3, 63.3741),
    Sketcher.Constraint("DistanceY", 0, 1, 1, 2, 8.317502),
    Sketcher.Constraint("DistanceY", 3, 3, 1, 2, 21.173498),
])
pocket10 = body.newObject("PartDesign::Pocket", "Pocket009")
pocket10.Profile = sketch11
pocket10.Type = "UpToFirst"

# Sketch on XY plane
sketch12 = body.newObject("Sketcher::SketchObject", "Sketch011")
sketch12.AttachmentSupport = (doc.getObject("XY_Plane"), [""])
sketch12.MapMode = "FlatFace"
sketch12.AttachmentOffset = App.Placement(App.Vector(0, 0, 2), App.Rotation())
sketch12.addGeometry(Part.Circle(App.Vector(93.6, 216, 0), App.Vector(0, 0, 1), 1.5), False)
sketch12.addConstraint([
    Sketcher.Constraint("Diameter", 0, 3.0),
    Sketcher.Constraint("DistanceY", -1, 1, 0, 3, 216.0),
    Sketcher.Constraint("DistanceX", -1, 1, 0, 3, 93.62882),
])
pocket11 = body.newObject("PartDesign::Pocket", "Pocket010")
pocket11.Profile = sketch12
pocket11.Type = "UpToFirst"

# Sketch on XY plane
sketch13 = body.newObject("Sketcher::SketchObject", "Sketch012")
sketch13.AttachmentSupport = (doc.getObject("XY_Plane"), [""])
sketch13.MapMode = "FlatFace"
sketch13.AttachmentOffset = App.Placement(App.Vector(0, 0, 2), App.Rotation())
sketch13.addGeometry(Part.Circle(App.Vector(114.6, 216, 0), App.Vector(0, 0, 1), 1.5), False)
sketch13.addConstraint([
    Sketcher.Constraint("Diameter", 0, 3.0),
    Sketcher.Constraint("DistanceY", -1, 1, 0, 3, 216.0),
    Sketcher.Constraint("DistanceX", -1, 1, 0, 3, 114.62882),
])
pocket12 = body.newObject("PartDesign::Pocket", "Pocket011")
pocket12.Profile = sketch13
pocket12.Type = "UpToFirst"

# Sketch on XY plane
sketch14 = body.newObject("Sketcher::SketchObject", "Sketch013")
sketch14.AttachmentSupport = (doc.getObject("XY_Plane"), [""])
sketch14.MapMode = "FlatFace"
sketch14.AttachmentOffset = App.Placement(App.Vector(0, 0, 2), App.Rotation())
sketch14.addGeometry(Part.Circle(App.Vector(93.6, 6, 0), App.Vector(0, 0, 1), 1.5), False)
sketch14.addConstraint([
    Sketcher.Constraint("Diameter", 0, 3.0),
    Sketcher.Constraint("DistanceY", -1, 1, 0, 3, 6.0),
    Sketcher.Constraint("DistanceX", -1, 1, 0, 3, 93.62882),
])
pocket13 = body.newObject("PartDesign::Pocket", "Pocket012")
pocket13.Profile = sketch14
pocket13.Type = "UpToFirst"

# Sketch on XY plane
sketch15 = body.newObject("Sketcher::SketchObject", "Sketch014")
sketch15.AttachmentSupport = (doc.getObject("XY_Plane"), [""])
sketch15.MapMode = "FlatFace"
sketch15.AttachmentOffset = App.Placement(App.Vector(0, 0, 2), App.Rotation())
sketch15.addGeometry(Part.Circle(App.Vector(114.6, 6, 0), App.Vector(0, 0, 1), 1.5), False)
sketch15.addConstraint([
    Sketcher.Constraint("Diameter", 0, 3.0),
    Sketcher.Constraint("DistanceY", -1, 1, 0, 3, 6.0),
    Sketcher.Constraint("DistanceX", -1, 1, 0, 3, 114.62882),
])
pocket14 = body.newObject("PartDesign::Pocket", "Pocket013")
pocket14.Profile = sketch15
pocket14.Type = "UpToFirst"

# Sketch on XY plane
sketch16 = body.newObject("Sketcher::SketchObject", "Sketch015")
sketch16.AttachmentSupport = (doc.getObject("XY_Plane"), [""])
sketch16.MapMode = "FlatFace"
sketch16.AttachmentOffset = App.Placement(App.Vector(0, 0, 2), App.Rotation())
sketch16.addGeometry(Part.Circle(App.Vector(7.9, 67.6, 0), App.Vector(0, 0, 1), 1.5), False)
sketch16.addConstraint([
    Sketcher.Constraint("Diameter", 0, 3.0),
    Sketcher.Constraint("DistanceX", -1, 1, 0, 3, 7.946152),
    Sketcher.Constraint("DistanceY", -1, 1, 0, 3, 67.593267),
])
pocket15 = body.newObject("PartDesign::Pocket", "Pocket014")
pocket15.Profile = sketch16
pocket15.Type = "UpToFirst"

# Sketch on XY plane
sketch17 = body.newObject("Sketcher::SketchObject", "Sketch016")
sketch17.AttachmentSupport = (doc.getObject("XY_Plane"), [""])
sketch17.MapMode = "FlatFace"
sketch17.AttachmentOffset = App.Placement(App.Vector(0, 0, 2), App.Rotation())
sketch17.addGeometry(Part.Circle(App.Vector(18.4, 49.4, 0), App.Vector(0, 0, 1), 1.5), False)
sketch17.addConstraint([
    Sketcher.Constraint("Diameter", 0, 3.0),
    Sketcher.Constraint("DistanceX", -1, 1, 0, 3, 18.446152),
    Sketcher.Constraint("DistanceY", -1, 1, 0, 3, 49.406733),
])
pocket16 = body.newObject("PartDesign::Pocket", "Pocket015")
pocket16.Profile = sketch17
pocket16.Type = "UpToFirst"

# Sketch on XY plane
sketch18 = body.newObject("Sketcher::SketchObject", "Sketch017")
sketch18.AttachmentSupport = (doc.getObject("XY_Plane"), [""])
sketch18.MapMode = "FlatFace"
sketch18.AttachmentOffset = App.Placement(App.Vector(0, 0, 2), App.Rotation())
sketch18.addGeometry(Part.Circle(App.Vector(7.9, 154.4, 0), App.Vector(0, 0, 1), 1.5), False)
sketch18.addConstraint([
    Sketcher.Constraint("Diameter", 0, 3.0),
    Sketcher.Constraint("DistanceX", -1, 1, 0, 3, 7.946152),
    Sketcher.Constraint("DistanceY", -1, 1, 0, 3, 154.406733),
])
pocket17 = body.newObject("PartDesign::Pocket", "Pocket016")
pocket17.Profile = sketch18
pocket17.Type = "UpToFirst"

# Sketch on XY plane
sketch19 = body.newObject("Sketcher::SketchObject", "Sketch018")
sketch19.AttachmentSupport = (doc.getObject("XY_Plane"), [""])
sketch19.MapMode = "FlatFace"
sketch19.AttachmentOffset = App.Placement(App.Vector(0, 0, 2), App.Rotation())
sketch19.addGeometry(Part.Circle(App.Vector(18.4, 172.6, 0), App.Vector(0, 0, 1), 1.5), False)
sketch19.addConstraint([
    Sketcher.Constraint("Diameter", 0, 3.0),
    Sketcher.Constraint("DistanceX", -1, 1, 0, 3, 18.446152),
    Sketcher.Constraint("DistanceY", -1, 1, 0, 3, 172.593267),
])
pocket18 = body.newObject("PartDesign::Pocket", "Pocket017")
pocket18.Profile = sketch19
pocket18.Type = "UpToFirst"

# Sketch on XY plane
sketch20 = body.newObject("Sketcher::SketchObject", "Sketch019")
sketch20.AttachmentSupport = (doc.getObject("XY_Plane"), [""])
sketch20.MapMode = "FlatFace"
sketch20.AttachmentOffset = App.Placement(App.Vector(0, 0, 2), App.Rotation())
sketch20.addGeometry(Part.Circle(App.Vector(189.8, 172.6, 0), App.Vector(0, 0, 1), 1.5), False)
sketch20.addConstraint([
    Sketcher.Constraint("Diameter", 0, 3.0),
    Sketcher.Constraint("DistanceX", -1, 1, 0, 3, 189.811487),
    Sketcher.Constraint("DistanceY", -1, 1, 0, 3, 172.593267),
])
pocket19 = body.newObject("PartDesign::Pocket", "Pocket018")
pocket19.Profile = sketch20
pocket19.Type = "UpToFirst"

# Sketch on XY plane
sketch21 = body.newObject("Sketcher::SketchObject", "Sketch020")
sketch21.AttachmentSupport = (doc.getObject("XY_Plane"), [""])
sketch21.MapMode = "FlatFace"
sketch21.AttachmentOffset = App.Placement(App.Vector(0, 0, 2), App.Rotation())
sketch21.addGeometry(Part.Circle(App.Vector(200.3, 154.4, 0), App.Vector(0, 0, 1), 1.5), False)
sketch21.addConstraint([
    Sketcher.Constraint("Diameter", 0, 3.0),
    Sketcher.Constraint("DistanceX", -1, 1, 0, 3, 200.311487),
    Sketcher.Constraint("DistanceY", -1, 1, 0, 3, 154.406733),
])
pocket20 = body.newObject("PartDesign::Pocket", "Pocket019")
pocket20.Profile = sketch21
pocket20.Type = "UpToFirst"

# Sketch on XY plane
sketch22 = body.newObject("Sketcher::SketchObject", "Sketch021")
sketch22.AttachmentSupport = (doc.getObject("XY_Plane"), [""])
sketch22.MapMode = "FlatFace"
sketch22.AttachmentOffset = App.Placement(App.Vector(0, 0, 2), App.Rotation())
sketch22.addGeometry(Part.Circle(App.Vector(200.3, 67.6, 0), App.Vector(0, 0, 1), 1.5), False)
sketch22.addConstraint([
    Sketcher.Constraint("Diameter", 0, 3.0),
    Sketcher.Constraint("DistanceX", -1, 1, 0, 3, 200.311487),
    Sketcher.Constraint("DistanceY", -1, 1, 0, 3, 67.593267),
])
pocket21 = body.newObject("PartDesign::Pocket", "Pocket020")
pocket21.Profile = sketch22
pocket21.Type = "UpToFirst"

# Sketch on XY plane
sketch23 = body.newObject("Sketcher::SketchObject", "Sketch022")
sketch23.AttachmentSupport = (doc.getObject("XY_Plane"), [""])
sketch23.MapMode = "FlatFace"
sketch23.AttachmentOffset = App.Placement(App.Vector(0, 0, 2), App.Rotation())
sketch23.addGeometry(Part.Circle(App.Vector(189.8, 49.4, 0), App.Vector(0, 0, 1), 1.5), False)
sketch23.addConstraint([
    Sketcher.Constraint("Diameter", 0, 3.0),
    Sketcher.Constraint("DistanceX", -1, 1, 0, 3, 189.811487),
    Sketcher.Constraint("DistanceY", -1, 1, 0, 3, 49.406733),
])
pocket22 = body.newObject("PartDesign::Pocket", "Pocket021")
pocket22.Profile = sketch23
pocket22.Type = "UpToFirst"

doc.recompute()
